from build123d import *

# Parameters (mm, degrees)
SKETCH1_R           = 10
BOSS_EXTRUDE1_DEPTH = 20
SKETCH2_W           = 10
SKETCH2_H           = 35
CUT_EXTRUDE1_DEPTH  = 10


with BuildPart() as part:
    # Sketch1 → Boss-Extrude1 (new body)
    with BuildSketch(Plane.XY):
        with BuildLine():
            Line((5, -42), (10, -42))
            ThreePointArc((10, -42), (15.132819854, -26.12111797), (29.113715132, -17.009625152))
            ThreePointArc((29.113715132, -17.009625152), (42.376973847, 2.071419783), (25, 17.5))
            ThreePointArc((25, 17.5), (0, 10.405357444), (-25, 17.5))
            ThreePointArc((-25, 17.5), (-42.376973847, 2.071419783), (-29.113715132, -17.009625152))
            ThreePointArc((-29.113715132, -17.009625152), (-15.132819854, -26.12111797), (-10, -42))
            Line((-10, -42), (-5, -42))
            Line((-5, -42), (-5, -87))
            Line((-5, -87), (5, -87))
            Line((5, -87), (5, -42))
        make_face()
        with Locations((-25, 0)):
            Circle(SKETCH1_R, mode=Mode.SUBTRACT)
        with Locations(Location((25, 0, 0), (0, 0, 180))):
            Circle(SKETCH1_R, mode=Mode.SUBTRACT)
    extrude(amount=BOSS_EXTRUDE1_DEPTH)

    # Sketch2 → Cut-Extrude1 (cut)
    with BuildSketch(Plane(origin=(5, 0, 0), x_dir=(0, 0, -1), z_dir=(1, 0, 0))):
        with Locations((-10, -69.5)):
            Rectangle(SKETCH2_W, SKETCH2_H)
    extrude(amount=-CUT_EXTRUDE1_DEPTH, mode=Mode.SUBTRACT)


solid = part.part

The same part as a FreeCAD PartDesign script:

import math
import FreeCAD as App
import Part
import Sketcher

V = App.Vector
Q = App.Units.Quantity

doc = App.newDocument("Part")
params = doc.addObject("Spreadsheet::Sheet", "Params")
for row, (alias, value) in enumerate([
    ("sketch1_diameter", "20 mm"),
    ("sketch1_radius", "25 mm"),
    ("sketch1_radius2", "17.5 mm"),
    ("sketch1_width", "5 mm"),
    ("sketch1_width2", "10 mm"),
    ("pad1_length", "20 mm"),
    ("sketch2_width", "35 mm"),
    ("sketch2_height", "10 mm"),
    ("pocket1_length", "10 mm"),
], start=1):
    params.set(f"A{row}", alias)
    params.set(f"B{row}", "=" + value)
    params.setAlias(f"B{row}", alias)

body = doc.addObject("PartDesign::Body", "Body")

# Sketch on XY plane
sketch1 = body.newObject("Sketcher::SketchObject", "Sketch")
sketch1.AttachmentSupport = (doc.getObject("XY_Plane"), [""])
sketch1.MapMode = "FlatFace"
sketch1.addGeometry(Part.LineSegment(V(5, -42, 0), V(10, -42, 0)), False)
sketch1.addGeometry(Part.ArcOfCircle(Part.Circle(V(35, -41, 0), V(0, 0, 1), 25), math.radians(104), math.radians(182)), False)
sketch1.addGeometry(Part.ArcOfCircle(Part.Circle(V(25, 0, 0), V(0, 0, 1), 18), math.radians(-76), math.radians(90)), False)
sketch1.addGeometry(Part.ArcOfCircle(Part.Circle(V(0, 58, 0), V(0, 0, 1), 48), math.radians(-122), math.radians(-58)), False)
sketch1.addGeometry(Part.ArcOfCircle(Part.Circle(V(-25, 0, 0), V(0, 0, 1), 18), math.radians(90), math.radians(256)), False)
sketch1.addGeometry(Part.ArcOfCircle(Part.Circle(V(-35, -41, 0), V(0, 0, 1), 25), math.radians(-2), math.radians(76)), False)
sketch1.addGeometry(Part.LineSegment(V(-10, -42, 0), V(-5, -42, 0)), False)
sketch1.addGeometry(Part.LineSegment(V(-5, -42, 0), V(-5, -87, 0)), False)
sketch1.addGeometry(Part.LineSegment(V(-5, -87, 0), V(5, -87, 0)), False)
sketch1.addGeometry(Part.LineSegment(V(5, -87, 0), V(5, -42, 0)), False)
sketch1.addGeometry(Part.Circle(V(-25, 0, 0), V(0, 0, 1), 10), False)
sketch1.addGeometry(Part.Circle(V(25, 0, 0), V(0, 0, 1), 10), False)
sketch1.addConstraint(Sketcher.Constraint("Coincident", 0, 2, 1, 2))
sketch1.addConstraint(Sketcher.Constraint("Tangent", 1, 1, 2, 1))
sketch1.addConstraint(Sketcher.Constraint("Coincident", 2, 2, 3, 2))
sketch1.addConstraint(Sketcher.Constraint("Coincident", 3, 1, 4, 1))
sketch1.addConstraint(Sketcher.Constraint("Tangent", 4, 2, 5, 2))
sketch1.addConstraint(Sketcher.Constraint("Coincident", 5, 1, 6, 1))
sketch1.addConstraint(Sketcher.Constraint("Coincident", 6, 2, 7, 1))
sketch1.addConstraint(Sketcher.Constraint("Coincident", 7, 2, 8, 1))
sketch1.addConstraint(Sketcher.Constraint("Coincident", 8, 2, 9, 1))
sketch1.addConstraint(Sketcher.Constraint("Coincident", 9, 2, 0, 1))
sketch1.addConstraint(Sketcher.Constraint("Horizontal", 0))
sketch1.addConstraint(Sketcher.Constraint("Horizontal", 6))
sketch1.addConstraint(Sketcher.Constraint("Vertical", 7))
sketch1.addConstraint(Sketcher.Constraint("Horizontal", 8))
sketch1.addConstraint(Sketcher.Constraint("Vertical", 9))
sketch1.addConstraint(Sketcher.Constraint("Coincident", 10, 3, 4, 3))
sketch1.addConstraint(Sketcher.Constraint("Coincident", 11, 3, 2, 3))
sketch1.addConstraint(Sketcher.Constraint("Equal", 2, 4))
sketch1.addConstraint(Sketcher.Constraint("Equal", 1, 5))
sketch1.addConstraint(Sketcher.Constraint("Equal", 10, 11))
sketch1.addConstraint(Sketcher.Constraint("Symmetric", 2, 3, 4, 3, -1, 1))
sketch1.addConstraint(Sketcher.Constraint("Symmetric", 1, 3, 5, 3, -2))
sketch1.addConstraint(Sketcher.Constraint("Symmetric", 6, 2, 9, 2, -2))
sketch1.addConstraint(Sketcher.Constraint("PointOnObject", 3, 3, -2))
sketch1.addConstraint(Sketcher.Constraint("Vertical", 11, 3, 2, 2))
sketch1.addConstraint(Sketcher.Constraint("Diameter", 10, Q("20 mm")))
sketch1.addConstraint(Sketcher.Constraint("Radius", 1, Q("25 mm")))
sketch1.addConstraint(Sketcher.Constraint("Radius", 2, Q("17.5 mm")))
sketch1.addConstraint(Sketcher.Constraint("DistanceX", 0, 1, 0, 2, Q("5 mm")))
sketch1.addConstraint(Sketcher.Constraint("DistanceX", 8, 1, 8, 2, Q("10 mm")))
sketch1.addConstraint(Sketcher.Constraint("DistanceY", 7, 2, 7, 1, Q("45 mm")))
sketch1.addConstraint(Sketcher.Constraint("DistanceX", -1, 1, 2, 3, Q("25 mm")))
sketch1.addConstraint(Sketcher.Constraint("DistanceY", -1, 1, 3, 3, Q("58 mm")))
sketch1.addConstraint(Sketcher.Constraint("DistanceY", 0, 2, -1, 1, Q("42 mm")))
sketch1.setExpression("Constraints[25]", "Params.sketch1_diameter")
sketch1.setExpression("Constraints[26]", "Params.sketch1_radius")
sketch1.setExpression("Constraints[27]", "Params.sketch1_radius2")
sketch1.setExpression("Constraints[28]", "Params.sketch1_width")
sketch1.setExpression("Constraints[29]", "Params.sketch1_width2")
pad1 = body.newObject("PartDesign::Pad", "Pad")
pad1.Profile = sketch1
pad1.setExpression("Length", "Params.pad1_length")

# Sketch on YZ plane
sketch2 = body.newObject("Sketcher::SketchObject", "Sketch001")
sketch2.AttachmentSupport = (doc.getObject("YZ_Plane"), [""])
sketch2.MapMode = "FlatFace"
sketch2.AttachmentOffset = App.Placement(V(0, 0, 5), App.Rotation())
sketch2.addGeometry(Part.LineSegment(V(-52, 15, 0), V(-87, 15, 0)), False)
sketch2.addGeometry(Part.LineSegment(V(-87, 15, 0), V(-87, 5, 0)), False)
sketch2.addGeometry(Part.LineSegment(V(-87, 5, 0), V(-52, 5, 0)), False)
sketch2.addGeometry(Part.LineSegment(V(-52, 5, 0), V(-52, 15, 0)), False)
sketch2.addConstraint(Sketcher.Constraint("Coincident", 0, 2, 1, 1))
sketch2.addConstraint(Sketcher.Constraint("Coincident", 1, 2, 2, 1))
sketch2.addConstraint(Sketcher.Constraint("Coincident", 2, 2, 3, 1))
sketch2.addConstraint(Sketcher.Constraint("Coincident", 3, 2, 0, 1))
sketch2.addConstraint(Sketcher.Constraint("Horizontal", 0))
sketch2.addConstraint(Sketcher.Constraint("Vertical", 1))
sketch2.addConstraint(Sketcher.Constraint("Horizontal", 2))
sketch2.addConstraint(Sketcher.Constraint("Vertical", 3))
sketch2.addConstraint(Sketcher.Constraint("DistanceX", 0, 2, 0, 1, Q("35 mm")))
sketch2.addConstraint(Sketcher.Constraint("DistanceY", 1, 2, 1, 1, Q("10 mm")))
sketch2.addConstraint(Sketcher.Constraint("DistanceX", 0, 2, -1, 1, Q("87 mm")))
sketch2.addConstraint(Sketcher.Constraint("DistanceY", -1, 1, 0, 2, Q("15 mm")))
sketch2.setExpression("Constraints[8]", "Params.sketch2_width")
sketch2.setExpression("Constraints[9]", "Params.sketch2_height")
pocket1 = body.newObject("PartDesign::Pocket", "Pocket")
pocket1.Profile = sketch2
pocket1.setExpression("Length", "Params.pocket1_length")

doc.recompute()
